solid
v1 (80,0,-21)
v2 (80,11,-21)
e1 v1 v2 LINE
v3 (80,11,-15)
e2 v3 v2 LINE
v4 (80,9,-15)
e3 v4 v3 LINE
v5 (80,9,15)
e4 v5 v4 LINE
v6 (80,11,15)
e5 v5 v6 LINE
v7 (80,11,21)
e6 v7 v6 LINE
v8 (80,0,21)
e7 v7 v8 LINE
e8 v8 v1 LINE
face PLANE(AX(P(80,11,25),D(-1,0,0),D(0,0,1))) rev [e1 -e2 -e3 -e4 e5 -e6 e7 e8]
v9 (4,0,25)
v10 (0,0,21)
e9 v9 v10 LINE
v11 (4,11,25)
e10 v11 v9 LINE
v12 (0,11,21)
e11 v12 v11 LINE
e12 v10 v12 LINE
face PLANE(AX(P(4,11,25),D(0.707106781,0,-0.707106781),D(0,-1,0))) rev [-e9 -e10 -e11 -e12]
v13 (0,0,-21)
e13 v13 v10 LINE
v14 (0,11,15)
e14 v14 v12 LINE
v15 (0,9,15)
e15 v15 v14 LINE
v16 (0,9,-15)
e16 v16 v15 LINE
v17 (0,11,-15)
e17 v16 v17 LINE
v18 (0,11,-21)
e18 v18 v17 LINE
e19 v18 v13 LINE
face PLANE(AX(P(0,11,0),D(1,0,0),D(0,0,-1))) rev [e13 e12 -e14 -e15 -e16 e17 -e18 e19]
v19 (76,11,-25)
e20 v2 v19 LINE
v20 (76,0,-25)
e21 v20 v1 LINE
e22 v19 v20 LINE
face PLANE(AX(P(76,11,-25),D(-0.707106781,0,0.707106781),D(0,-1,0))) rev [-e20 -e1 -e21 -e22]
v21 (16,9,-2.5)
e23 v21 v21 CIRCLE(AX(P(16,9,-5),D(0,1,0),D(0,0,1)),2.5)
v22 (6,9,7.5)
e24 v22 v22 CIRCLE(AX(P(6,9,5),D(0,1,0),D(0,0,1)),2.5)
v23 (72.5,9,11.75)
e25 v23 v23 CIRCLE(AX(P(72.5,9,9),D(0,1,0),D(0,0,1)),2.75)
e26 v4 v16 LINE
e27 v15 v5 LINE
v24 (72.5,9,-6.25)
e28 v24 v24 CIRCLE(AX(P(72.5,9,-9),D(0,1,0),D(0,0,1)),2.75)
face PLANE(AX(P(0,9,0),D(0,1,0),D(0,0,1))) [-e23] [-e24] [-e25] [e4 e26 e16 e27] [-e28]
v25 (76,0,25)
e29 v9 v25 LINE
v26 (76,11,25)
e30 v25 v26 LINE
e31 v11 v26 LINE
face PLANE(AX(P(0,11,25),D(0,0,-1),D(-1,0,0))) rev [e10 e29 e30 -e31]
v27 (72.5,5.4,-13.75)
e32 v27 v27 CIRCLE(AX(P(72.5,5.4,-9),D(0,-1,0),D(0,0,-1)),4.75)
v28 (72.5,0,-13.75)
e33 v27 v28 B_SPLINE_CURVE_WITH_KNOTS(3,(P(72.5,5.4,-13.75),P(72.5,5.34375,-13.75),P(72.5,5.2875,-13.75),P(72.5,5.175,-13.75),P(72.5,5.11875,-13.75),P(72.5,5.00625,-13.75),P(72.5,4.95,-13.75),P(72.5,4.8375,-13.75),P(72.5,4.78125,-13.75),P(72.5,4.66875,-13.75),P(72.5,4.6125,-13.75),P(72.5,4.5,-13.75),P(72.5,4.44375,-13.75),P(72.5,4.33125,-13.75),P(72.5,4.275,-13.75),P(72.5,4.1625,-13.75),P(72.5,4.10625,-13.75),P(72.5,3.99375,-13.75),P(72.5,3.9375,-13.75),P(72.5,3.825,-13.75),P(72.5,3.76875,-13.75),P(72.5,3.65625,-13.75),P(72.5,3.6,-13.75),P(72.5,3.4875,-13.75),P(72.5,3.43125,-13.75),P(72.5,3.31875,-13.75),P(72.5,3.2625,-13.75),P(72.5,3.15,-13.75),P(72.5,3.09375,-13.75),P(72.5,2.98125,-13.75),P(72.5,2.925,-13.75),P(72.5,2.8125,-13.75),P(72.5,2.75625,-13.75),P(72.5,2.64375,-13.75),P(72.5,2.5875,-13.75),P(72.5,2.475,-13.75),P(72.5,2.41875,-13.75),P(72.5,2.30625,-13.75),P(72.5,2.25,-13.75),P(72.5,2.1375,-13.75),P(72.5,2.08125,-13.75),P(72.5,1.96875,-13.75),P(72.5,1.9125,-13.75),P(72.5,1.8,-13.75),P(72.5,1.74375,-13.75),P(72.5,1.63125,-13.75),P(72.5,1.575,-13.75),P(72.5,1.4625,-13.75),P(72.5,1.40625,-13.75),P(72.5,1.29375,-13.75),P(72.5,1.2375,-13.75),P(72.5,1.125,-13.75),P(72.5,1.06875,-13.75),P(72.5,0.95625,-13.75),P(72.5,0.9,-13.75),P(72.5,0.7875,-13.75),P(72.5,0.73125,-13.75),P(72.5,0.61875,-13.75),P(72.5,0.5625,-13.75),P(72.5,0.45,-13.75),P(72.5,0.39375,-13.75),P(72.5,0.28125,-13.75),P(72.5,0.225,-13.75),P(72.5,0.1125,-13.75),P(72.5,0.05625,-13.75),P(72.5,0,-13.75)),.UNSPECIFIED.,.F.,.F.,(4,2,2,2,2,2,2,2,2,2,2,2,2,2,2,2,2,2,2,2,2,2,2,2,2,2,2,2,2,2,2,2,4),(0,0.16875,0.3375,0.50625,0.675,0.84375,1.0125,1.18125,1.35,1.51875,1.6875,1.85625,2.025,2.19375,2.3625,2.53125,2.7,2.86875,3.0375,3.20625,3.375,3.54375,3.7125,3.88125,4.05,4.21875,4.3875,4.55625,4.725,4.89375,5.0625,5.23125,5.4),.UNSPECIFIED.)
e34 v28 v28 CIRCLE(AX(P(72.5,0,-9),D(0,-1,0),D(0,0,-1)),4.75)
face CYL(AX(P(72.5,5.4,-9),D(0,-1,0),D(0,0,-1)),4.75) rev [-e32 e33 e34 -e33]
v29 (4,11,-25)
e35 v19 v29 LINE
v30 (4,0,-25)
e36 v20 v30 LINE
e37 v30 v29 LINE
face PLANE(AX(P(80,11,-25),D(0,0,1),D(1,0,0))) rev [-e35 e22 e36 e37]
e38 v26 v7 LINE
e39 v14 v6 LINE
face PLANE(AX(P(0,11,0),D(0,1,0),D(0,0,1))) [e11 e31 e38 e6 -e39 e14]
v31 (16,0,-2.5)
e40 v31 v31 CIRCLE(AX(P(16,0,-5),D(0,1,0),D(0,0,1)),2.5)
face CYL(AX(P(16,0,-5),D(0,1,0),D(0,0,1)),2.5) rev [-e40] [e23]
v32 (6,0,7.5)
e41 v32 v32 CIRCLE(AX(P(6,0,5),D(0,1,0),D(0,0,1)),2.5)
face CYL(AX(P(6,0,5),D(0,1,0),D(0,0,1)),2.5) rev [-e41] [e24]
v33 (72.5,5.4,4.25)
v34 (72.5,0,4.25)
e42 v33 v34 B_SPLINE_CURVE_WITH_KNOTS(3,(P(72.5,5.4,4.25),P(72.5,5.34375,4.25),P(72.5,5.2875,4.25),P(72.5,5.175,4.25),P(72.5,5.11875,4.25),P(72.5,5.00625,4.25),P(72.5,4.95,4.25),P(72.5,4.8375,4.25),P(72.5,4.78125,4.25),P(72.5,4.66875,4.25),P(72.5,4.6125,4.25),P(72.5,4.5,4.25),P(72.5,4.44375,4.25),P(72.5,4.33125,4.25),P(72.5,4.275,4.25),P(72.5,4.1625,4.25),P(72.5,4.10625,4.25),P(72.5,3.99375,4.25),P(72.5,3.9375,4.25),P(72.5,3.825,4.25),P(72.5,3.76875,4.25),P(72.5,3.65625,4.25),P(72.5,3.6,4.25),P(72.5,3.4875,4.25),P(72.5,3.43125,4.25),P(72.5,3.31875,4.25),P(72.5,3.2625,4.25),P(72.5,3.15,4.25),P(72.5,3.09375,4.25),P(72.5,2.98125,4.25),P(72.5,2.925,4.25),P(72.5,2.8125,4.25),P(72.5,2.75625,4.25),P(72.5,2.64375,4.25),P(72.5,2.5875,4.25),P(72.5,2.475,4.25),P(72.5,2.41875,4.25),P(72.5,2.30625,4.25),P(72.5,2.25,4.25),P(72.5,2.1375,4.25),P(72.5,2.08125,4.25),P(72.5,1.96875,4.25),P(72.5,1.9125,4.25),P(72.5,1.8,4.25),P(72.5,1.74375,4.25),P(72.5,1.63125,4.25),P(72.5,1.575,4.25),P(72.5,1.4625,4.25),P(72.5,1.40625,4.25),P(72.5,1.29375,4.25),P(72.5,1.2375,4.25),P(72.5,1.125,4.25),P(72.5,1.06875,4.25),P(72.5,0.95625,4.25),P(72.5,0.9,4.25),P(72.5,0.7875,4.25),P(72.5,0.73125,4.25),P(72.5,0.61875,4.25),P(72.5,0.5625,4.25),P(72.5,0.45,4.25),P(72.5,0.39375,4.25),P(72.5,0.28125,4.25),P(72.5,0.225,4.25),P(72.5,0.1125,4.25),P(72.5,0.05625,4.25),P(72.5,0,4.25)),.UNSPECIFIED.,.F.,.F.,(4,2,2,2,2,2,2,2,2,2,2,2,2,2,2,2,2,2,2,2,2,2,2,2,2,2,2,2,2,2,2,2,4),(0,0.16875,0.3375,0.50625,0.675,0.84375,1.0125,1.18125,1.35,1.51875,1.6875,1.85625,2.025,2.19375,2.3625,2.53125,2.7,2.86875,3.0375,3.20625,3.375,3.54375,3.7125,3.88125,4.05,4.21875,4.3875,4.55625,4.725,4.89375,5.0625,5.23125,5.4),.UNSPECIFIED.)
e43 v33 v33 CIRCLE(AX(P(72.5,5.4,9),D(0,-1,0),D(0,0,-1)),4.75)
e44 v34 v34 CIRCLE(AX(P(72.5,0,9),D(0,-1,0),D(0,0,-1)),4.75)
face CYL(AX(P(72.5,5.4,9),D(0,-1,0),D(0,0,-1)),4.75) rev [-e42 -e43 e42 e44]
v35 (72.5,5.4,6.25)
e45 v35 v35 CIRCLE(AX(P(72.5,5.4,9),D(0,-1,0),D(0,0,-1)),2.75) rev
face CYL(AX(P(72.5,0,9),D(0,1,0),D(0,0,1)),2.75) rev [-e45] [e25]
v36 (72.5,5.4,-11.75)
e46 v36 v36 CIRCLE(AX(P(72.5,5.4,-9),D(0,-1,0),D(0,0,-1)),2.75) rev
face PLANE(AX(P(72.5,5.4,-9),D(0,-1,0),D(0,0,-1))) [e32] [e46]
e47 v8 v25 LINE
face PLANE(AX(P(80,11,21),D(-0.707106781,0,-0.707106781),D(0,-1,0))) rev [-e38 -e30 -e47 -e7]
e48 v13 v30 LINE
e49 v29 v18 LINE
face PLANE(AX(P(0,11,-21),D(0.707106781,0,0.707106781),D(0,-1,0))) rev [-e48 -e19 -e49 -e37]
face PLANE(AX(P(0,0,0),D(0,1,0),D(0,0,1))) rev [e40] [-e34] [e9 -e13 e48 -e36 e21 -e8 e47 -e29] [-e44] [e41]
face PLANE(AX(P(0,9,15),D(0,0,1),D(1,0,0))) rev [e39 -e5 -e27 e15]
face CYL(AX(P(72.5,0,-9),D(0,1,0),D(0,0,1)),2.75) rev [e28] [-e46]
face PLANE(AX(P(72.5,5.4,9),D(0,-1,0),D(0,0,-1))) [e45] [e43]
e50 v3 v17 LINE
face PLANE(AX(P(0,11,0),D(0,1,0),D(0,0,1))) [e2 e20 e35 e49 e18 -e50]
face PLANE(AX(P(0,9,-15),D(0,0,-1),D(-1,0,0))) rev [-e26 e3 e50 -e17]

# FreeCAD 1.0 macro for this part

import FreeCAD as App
import Part
import Sketcher
Q = App.Units.Quantity


def edges_at(feature, points):
    """Names of the edges that pass closest to the given points."""
    edges = feature.Shape.Edges
    near = lambda p: min(range(len(edges)), key=lambda i: edges[i].distToShape(Part.Vertex(*p))[0])
    return sorted({f"Edge{near(p) + 1}" for p in points})


def add_polygon(sketch, points):
    """Adds a closed chain of lines whose ends are joined by coincident constraints."""
    first, n = sketch.GeometryCount, len(points)
    for a, b in zip(points, points[1:] + points[:1]):
        sketch.addGeometry(Part.LineSegment(App.Vector(*a, 0), App.Vector(*b, 0)), False)
    for i in range(n):
        sketch.addConstraint(Sketcher.Constraint("Coincident", first + i, 2, first + (i + 1) % n, 1))

doc = App.newDocument("Part")
params = doc.addObject("Spreadsheet::Sheet", "Params")
for row, (alias, value) in enumerate([
    ("sketch1_width", "80 mm"),
    ("sketch1_height", "50 mm"),
    ("pad1_length", "11 mm"),
    ("sketch2_width", "80 mm"),
    ("sketch2_height", "30 mm"),
    ("pocket1_length", "2 mm"),
    ("sketch3_diameter", "5 mm"),
    ("sketch4_diameter", "5.5 mm"),
    ("chamfer_size", "4 mm"),
    ("sketch5_diameter", "9.5 mm"),
    ("pocket4_length", "5.4 mm"),
], start=1):
    params.set(f"A{row}", alias)
    params.set(f"B{row}", "=" + value)
    params.setAlias(f"B{row}", alias)

body = doc.addObject("PartDesign::Body", "Body")

# Sketch on XZ plane
sketch1 = body.newObject("Sketcher::SketchObject", "Sketch")
sketch1.AttachmentSupport = (doc.getObject("XZ_Plane"), [""])
sketch1.MapMode = "FlatFace"
add_polygon(sketch1, [(0, 25), (80, 25), (80, -25), (0, -25)])  # lines 0-3
sketch1.addConstraint(Sketcher.Constraint("Horizontal", 0))
sketch1.addConstraint(Sketcher.Constraint("Vertical", 1))
sketch1.addConstraint(Sketcher.Constraint("Horizontal", 2))
sketch1.addConstraint(Sketcher.Constraint("Vertical", 3))
sketch1.addConstraint(Sketcher.Constraint("Symmetric", 2, 2, 3, 2, -1, 1))
sketch1.addConstraint(Sketcher.Constraint("DistanceX", 0, 1, 0, 2, Q("80 mm")))
sketch1.addConstraint(Sketcher.Constraint("DistanceY", 1, 2, 1, 1, Q("50 mm")))
sketch1.setExpression("Constraints[9]", "Params.sketch1_width")
sketch1.setExpression("Constraints[10]", "Params.sketch1_height")
pad1 = body.newObject("PartDesign::Pad", "Pad")
pad1.Profile = sketch1
pad1.setExpression("Length", "Params.pad1_length")
pad1.Reversed = True

# Sketch on XZ plane
sketch2 = body.newObject("Sketcher::SketchObject", "Sketch001")
sketch2.AttachmentSupport = (doc.getObject("XZ_Plane"), [""])
sketch2.MapMode = "FlatFace"
sketch2.AttachmentOffset = App.Placement(App.Vector(0, 0, -11), App.Rotation())
add_polygon(sketch2, [(0, -15), (0, 15), (80, 15), (80, -15)])  # lines 0-3
sketch2.addConstraint(Sketcher.Constraint("Vertical", 0))
sketch2.addConstraint(Sketcher.Constraint("Horizontal", 1))
sketch2.addConstraint(Sketcher.Constraint("Vertical", 2))
sketch2.addConstraint(Sketcher.Constraint("Horizontal", 3))
sketch2.addConstraint(Sketcher.Constraint("Symmetric", 0, 2, 3, 2, -1, 1))
sketch2.addConstraint(Sketcher.Constraint("DistanceX", 1, 1, 1, 2, Q("80 mm")))
sketch2.addConstraint(Sketcher.Constraint("DistanceY", 0, 1, 0, 2, Q("30 mm")))
sketch2.setExpression("Constraints[9]", "Params.sketch2_width")
sketch2.setExpression("Constraints[10]", "Params.sketch2_height")
pocket1 = body.newObject("PartDesign::Pocket", "Pocket")
pocket1.Profile = sketch2
pocket1.setExpression("Length", "Params.pocket1_length")
pocket1.Reversed = True

# Sketch on XZ plane
sketch3 = body.newObject("Sketcher::SketchObject", "Sketch002")
sketch3.AttachmentSupport = (doc.getObject("XZ_Plane"), [""])
sketch3.MapMode = "FlatFace"
sketch3.AttachmentOffset = App.Placement(App.Vector(0, 0, -9), App.Rotation())
sketch3.addGeometry(Part.Circle(App.Vector(16, -5, 0), App.Vector(0, 0, 1), 2.5), False)
sketch3.addGeometry(Part.Circle(App.Vector(6, 5, 0), App.Vector(0, 0, 1), 2.5), False)
sketch3.addConstraint(Sketcher.Constraint("Equal", 0, 1))
sketch3.addConstraint(Sketcher.Constraint("Diameter", 0, Q("5 mm")))
sketch3.addConstraint(Sketcher.Constraint("DistanceX", -1, 1, 0, 3, Q("16 mm")))
sketch3.addConstraint(Sketcher.Constraint("DistanceY", 0, 3, -1, 1, Q("5 mm")))
sketch3.addConstraint(Sketcher.Constraint("DistanceX", -1, 1, 1, 3, Q("6 mm")))
sketch3.addConstraint(Sketcher.Constraint("DistanceY", -1, 1, 1, 3, Q("5 mm")))
sketch3.setExpression("Constraints[1]", "Params.sketch3_diameter")
pocket2 = body.newObject("PartDesign::Pocket", "Pocket001")
pocket2.Profile = sketch3
pocket2.Type = "ThroughAll"
pocket2.Reversed = True

# Sketch on XZ plane
sketch4 = body.newObject("Sketcher::SketchObject", "Sketch003")
sketch4.AttachmentSupport = (doc.getObject("XZ_Plane"), [""])
sketch4.MapMode = "FlatFace"
sketch4.AttachmentOffset = App.Placement(App.Vector(0, 0, -9), App.Rotation())
sketch4.addGeometry(Part.Circle(App.Vector(72.5, -9, 0), App.Vector(0, 0, 1), 2.8), False)
sketch4.addGeometry(Part.Circle(App.Vector(72.5, 9, 0), App.Vector(0, 0, 1), 2.8), False)
sketch4.addConstraint(Sketcher.Constraint("Equal", 0, 1))
sketch4.addConstraint(Sketcher.Constraint("Symmetric", 0, 3, 1, 3, -1))
sketch4.addConstraint(Sketcher.Constraint("Diameter", 0, Q("5.5 mm")))
sketch4.addConstraint(Sketcher.Constraint("DistanceY", 0, 3, -1, 1, Q("9 mm")))
sketch4.addConstraint(Sketcher.Constraint("DistanceX", -1, 1, 0, 3, Q("72.5 mm")))
sketch4.setExpression("Constraints[2]", "Params.sketch4_diameter")
pocket3 = body.newObject("PartDesign::Pocket", "Pocket002")
pocket3.Profile = sketch4
pocket3.Type = "ThroughAll"
pocket3.Reversed = True
doc.recompute()

chamfer = body.newObject("PartDesign::Chamfer", "Chamfer")
chamfer.Base = (pocket3, edges_at(pocket3, [
    (0, 5.5, -25),
    (80, 5.5, -25),
    (80, 5.5, 25),
    (0, 5.5, 25),
]))
chamfer.setExpression("Size", "Params.chamfer_size")

# Sketch on XZ plane
sketch5 = body.newObject("Sketcher::SketchObject", "Sketch004")
sketch5.AttachmentSupport = (doc.getObject("XZ_Plane"), [""])
sketch5.MapMode = "FlatFace"
sketch5.addGeometry(Part.Circle(App.Vector(72.5, 9, 0), App.Vector(0, 0, 1), 4.8), False)
sketch5.addGeometry(Part.Circle(App.Vector(72.5, -9, 0), App.Vector(0, 0, 1), 4.8), False)
sketch5.addConstraint(Sketcher.Constraint("Equal", 0, 1))
sketch5.addConstraint(Sketcher.Constraint("Symmetric", 0, 3, 1, 3, -1))
sketch5.addConstraint(Sketcher.Constraint("Diameter", 0, Q("9.5 mm")))
sketch5.addConstraint(Sketcher.Constraint("DistanceY", -1, 1, 0, 3, Q("9 mm")))
sketch5.addConstraint(Sketcher.Constraint("DistanceX", -1, 1, 0, 3, Q("72.5 mm")))
sketch5.setExpression("Constraints[2]", "Params.sketch5_diameter")
pocket4 = body.newObject("PartDesign::Pocket", "Pocket003")
pocket4.Profile = sketch5
pocket4.setExpression("Length", "Params.pocket4_length")

doc.recompute()
